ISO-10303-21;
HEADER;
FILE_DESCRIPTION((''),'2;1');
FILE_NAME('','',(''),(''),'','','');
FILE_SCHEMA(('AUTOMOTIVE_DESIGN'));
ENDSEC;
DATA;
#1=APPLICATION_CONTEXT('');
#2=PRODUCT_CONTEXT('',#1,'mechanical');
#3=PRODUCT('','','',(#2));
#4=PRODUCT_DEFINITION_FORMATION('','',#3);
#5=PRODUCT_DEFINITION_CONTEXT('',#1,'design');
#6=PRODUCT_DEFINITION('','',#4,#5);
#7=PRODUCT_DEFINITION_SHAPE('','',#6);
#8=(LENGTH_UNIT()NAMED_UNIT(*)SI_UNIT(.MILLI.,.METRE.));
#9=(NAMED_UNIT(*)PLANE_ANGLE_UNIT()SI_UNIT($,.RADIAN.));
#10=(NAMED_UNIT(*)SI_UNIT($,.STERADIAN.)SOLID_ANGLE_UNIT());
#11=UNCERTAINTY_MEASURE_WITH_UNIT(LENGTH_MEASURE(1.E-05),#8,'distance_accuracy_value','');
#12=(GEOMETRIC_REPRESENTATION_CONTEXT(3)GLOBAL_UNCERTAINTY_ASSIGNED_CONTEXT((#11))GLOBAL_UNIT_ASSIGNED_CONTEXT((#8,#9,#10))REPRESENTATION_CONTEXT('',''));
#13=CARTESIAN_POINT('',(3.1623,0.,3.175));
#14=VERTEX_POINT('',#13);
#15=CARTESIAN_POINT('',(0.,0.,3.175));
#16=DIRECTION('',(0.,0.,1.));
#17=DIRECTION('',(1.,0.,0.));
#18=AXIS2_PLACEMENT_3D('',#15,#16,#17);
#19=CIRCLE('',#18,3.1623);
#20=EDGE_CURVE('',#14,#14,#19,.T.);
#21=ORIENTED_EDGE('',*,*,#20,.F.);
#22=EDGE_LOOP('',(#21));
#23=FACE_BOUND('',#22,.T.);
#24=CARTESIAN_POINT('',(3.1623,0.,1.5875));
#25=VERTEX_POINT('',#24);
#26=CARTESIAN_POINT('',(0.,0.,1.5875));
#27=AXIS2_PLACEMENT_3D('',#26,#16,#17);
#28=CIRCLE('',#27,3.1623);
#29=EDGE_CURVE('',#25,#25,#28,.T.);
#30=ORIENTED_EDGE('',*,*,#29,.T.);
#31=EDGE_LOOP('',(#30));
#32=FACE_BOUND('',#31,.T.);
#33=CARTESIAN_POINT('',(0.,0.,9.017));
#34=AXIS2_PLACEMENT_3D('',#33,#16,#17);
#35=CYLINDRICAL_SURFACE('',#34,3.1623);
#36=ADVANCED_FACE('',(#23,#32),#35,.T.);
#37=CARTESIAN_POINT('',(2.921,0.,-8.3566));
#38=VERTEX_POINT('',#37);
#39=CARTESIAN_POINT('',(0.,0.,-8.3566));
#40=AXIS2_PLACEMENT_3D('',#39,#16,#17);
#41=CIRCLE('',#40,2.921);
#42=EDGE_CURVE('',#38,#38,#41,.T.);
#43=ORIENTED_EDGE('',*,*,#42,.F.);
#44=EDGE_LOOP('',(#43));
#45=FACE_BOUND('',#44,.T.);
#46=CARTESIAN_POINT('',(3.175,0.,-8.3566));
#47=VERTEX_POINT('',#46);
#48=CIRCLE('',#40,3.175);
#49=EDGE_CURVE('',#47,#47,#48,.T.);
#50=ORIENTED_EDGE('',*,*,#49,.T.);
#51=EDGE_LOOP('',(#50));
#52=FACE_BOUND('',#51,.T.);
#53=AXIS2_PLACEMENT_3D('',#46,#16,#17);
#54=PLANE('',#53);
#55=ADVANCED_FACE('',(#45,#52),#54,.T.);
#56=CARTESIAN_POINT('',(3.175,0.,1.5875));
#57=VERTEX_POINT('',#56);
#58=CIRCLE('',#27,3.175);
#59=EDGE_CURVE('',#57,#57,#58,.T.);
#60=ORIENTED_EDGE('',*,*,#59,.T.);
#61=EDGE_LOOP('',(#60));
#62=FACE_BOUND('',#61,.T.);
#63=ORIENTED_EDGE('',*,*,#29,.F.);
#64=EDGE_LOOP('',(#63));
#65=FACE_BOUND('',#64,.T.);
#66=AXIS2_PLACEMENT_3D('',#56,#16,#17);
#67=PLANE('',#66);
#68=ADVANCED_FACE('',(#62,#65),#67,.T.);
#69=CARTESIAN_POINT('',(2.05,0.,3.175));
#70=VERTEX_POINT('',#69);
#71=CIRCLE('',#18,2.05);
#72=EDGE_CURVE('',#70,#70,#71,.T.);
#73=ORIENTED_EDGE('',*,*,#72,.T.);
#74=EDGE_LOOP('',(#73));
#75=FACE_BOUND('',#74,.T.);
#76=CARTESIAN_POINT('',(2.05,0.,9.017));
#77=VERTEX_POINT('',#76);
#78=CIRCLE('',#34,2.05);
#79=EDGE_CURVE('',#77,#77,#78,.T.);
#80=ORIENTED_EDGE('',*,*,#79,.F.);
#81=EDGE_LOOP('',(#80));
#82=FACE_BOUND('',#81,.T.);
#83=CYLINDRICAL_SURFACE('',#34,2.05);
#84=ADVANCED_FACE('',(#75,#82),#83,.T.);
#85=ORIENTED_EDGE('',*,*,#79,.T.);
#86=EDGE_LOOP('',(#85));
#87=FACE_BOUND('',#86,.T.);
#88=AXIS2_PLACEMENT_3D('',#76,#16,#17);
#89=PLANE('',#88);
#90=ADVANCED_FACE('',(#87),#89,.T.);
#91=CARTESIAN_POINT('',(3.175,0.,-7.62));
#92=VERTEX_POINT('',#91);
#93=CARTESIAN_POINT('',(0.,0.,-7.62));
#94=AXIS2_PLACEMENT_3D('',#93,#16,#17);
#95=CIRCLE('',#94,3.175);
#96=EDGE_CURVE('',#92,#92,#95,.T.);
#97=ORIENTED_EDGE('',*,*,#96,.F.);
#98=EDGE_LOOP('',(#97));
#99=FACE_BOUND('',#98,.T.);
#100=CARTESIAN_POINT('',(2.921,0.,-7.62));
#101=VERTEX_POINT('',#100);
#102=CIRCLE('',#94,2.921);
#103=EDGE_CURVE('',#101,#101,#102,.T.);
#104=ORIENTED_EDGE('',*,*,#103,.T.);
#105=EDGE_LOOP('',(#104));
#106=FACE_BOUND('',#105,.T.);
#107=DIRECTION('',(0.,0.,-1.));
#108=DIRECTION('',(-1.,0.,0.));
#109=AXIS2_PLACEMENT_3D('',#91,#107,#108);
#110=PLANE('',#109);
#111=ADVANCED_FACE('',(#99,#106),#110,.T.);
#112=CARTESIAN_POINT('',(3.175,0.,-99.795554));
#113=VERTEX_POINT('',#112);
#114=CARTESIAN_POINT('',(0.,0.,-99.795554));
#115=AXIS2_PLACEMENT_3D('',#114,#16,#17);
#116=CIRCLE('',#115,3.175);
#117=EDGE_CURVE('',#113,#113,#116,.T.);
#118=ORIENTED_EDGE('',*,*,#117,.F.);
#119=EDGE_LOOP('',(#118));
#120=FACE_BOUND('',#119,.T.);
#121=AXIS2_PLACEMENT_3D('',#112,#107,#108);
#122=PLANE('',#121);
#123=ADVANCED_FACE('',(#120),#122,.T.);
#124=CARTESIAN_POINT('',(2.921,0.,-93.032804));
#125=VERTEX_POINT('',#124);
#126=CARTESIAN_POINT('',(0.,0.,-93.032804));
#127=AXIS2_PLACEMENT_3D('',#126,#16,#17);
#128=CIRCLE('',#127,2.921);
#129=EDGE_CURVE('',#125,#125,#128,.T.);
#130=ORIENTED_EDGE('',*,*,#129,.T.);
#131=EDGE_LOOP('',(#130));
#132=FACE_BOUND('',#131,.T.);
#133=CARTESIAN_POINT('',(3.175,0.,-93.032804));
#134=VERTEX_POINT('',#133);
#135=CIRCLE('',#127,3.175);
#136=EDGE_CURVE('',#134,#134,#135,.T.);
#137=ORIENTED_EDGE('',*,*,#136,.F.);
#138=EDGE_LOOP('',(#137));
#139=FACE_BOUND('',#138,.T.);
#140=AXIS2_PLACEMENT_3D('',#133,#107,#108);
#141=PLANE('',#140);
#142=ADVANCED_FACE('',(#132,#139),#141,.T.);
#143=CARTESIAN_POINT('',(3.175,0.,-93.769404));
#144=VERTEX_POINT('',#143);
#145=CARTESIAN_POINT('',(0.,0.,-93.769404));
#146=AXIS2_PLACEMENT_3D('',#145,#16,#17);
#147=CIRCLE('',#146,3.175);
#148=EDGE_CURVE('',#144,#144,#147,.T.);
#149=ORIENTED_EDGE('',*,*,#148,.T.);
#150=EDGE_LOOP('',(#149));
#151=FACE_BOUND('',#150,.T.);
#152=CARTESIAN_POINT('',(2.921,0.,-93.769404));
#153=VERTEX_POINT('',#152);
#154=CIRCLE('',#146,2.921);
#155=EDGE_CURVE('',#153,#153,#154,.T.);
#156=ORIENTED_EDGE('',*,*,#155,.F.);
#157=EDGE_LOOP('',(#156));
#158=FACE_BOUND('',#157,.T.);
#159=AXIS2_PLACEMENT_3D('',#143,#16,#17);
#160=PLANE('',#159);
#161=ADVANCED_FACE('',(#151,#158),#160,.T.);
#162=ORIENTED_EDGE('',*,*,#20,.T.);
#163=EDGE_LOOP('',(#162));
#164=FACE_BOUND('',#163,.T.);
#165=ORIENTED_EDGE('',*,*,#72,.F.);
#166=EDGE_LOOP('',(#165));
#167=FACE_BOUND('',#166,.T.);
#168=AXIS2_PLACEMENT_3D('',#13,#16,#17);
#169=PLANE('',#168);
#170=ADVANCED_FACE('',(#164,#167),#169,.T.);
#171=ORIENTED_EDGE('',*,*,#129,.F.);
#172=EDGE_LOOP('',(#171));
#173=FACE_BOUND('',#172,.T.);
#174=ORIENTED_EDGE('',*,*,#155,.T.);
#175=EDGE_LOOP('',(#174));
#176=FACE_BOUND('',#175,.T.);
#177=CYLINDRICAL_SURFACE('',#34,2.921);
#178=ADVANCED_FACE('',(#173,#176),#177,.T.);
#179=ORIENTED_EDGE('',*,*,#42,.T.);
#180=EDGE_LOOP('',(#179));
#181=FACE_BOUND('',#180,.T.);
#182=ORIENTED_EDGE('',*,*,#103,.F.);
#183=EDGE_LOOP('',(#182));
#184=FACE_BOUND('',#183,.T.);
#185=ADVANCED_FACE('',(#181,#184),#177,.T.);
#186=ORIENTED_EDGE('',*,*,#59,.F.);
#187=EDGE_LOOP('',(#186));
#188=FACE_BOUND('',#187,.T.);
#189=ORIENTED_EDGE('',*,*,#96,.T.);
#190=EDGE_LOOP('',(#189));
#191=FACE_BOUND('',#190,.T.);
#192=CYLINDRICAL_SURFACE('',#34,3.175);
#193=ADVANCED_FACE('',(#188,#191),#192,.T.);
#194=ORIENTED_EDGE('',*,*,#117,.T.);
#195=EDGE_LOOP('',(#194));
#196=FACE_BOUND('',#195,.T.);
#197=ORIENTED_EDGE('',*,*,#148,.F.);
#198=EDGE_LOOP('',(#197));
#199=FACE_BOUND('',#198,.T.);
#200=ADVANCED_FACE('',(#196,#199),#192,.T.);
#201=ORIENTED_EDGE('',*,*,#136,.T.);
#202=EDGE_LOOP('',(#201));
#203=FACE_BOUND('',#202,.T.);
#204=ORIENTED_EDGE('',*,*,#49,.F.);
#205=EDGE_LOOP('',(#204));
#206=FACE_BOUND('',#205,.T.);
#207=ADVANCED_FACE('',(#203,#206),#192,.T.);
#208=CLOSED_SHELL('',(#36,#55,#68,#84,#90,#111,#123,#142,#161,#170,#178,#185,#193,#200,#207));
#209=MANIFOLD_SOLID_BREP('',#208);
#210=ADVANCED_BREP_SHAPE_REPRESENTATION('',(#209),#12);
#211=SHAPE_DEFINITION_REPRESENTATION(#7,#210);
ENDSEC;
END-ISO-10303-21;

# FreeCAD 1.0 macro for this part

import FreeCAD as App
import Part
import Sketcher

V = App.Vector
Q = App.Units.Quantity


def add_polygon(sketch, points):
    """Adds a closed chain of lines whose ends are joined by coincident constraints."""
    first, n = sketch.GeometryCount, len(points)
    for a, b in zip(points, points[1:] + points[:1]):
        sketch.addGeometry(Part.LineSegment(App.Vector(*a, 0), App.Vector(*b, 0)), False)
    for i in range(n):
        sketch.addConstraint(Sketcher.Constraint("Coincident", first + i, 2, first + (i + 1) % n, 1))

doc = App.newDocument("Part")
body = doc.addObject("PartDesign::Body", "Body")

sketch1 = doc.addObject("Sketcher::SketchObject", "Sketch")
body.addObject(sketch1)
sketch1.AttachmentSupport = (doc.XZ_Plane, [""])
sketch1.MapMode = "FlatFace"
add_polygon(sketch1, [(3.175, -99.795554), (0, -99.795554), (0, 9.017), (2.05, 9.017), (2.05, 3.175), (3.1623, 3.175), (3.1623, 1.5875), (3.175, 1.5875), (3.175, -7.62), (2.921, -7.62), (2.921, -8.3566), (3.175, -8.3566), (3.175, -93.032804), (2.921, -93.032804), (2.921, -93.769404), (3.175, -93.769404)])
sketch1.addConstraint([
    Sketcher.Constraint("Horizontal", 0),
    Sketcher.Constraint("Vertical", 1),
    Sketcher.Constraint("Horizontal", 2),
    Sketcher.Constraint("Vertical", 3),
    Sketcher.Constraint("Horizontal", 4),
    Sketcher.Constraint("Vertical", 5),
    Sketcher.Constraint("Horizontal", 6),
    Sketcher.Constraint("Vertical", 7),
    Sketcher.Constraint("Horizontal", 8),
    Sketcher.Constraint("Vertical", 9),
    Sketcher.Constraint("Horizontal", 10),
    Sketcher.Constraint("Vertical", 11),
    Sketcher.Constraint("Horizontal", 12),
    Sketcher.Constraint("Vertical", 13),
    Sketcher.Constraint("Horizontal", 14),
    Sketcher.Constraint("Vertical", 15),
    Sketcher.Constraint("PointOnObject", 0, 2, -2),
    Sketcher.Constraint("Vertical", 7, 2, 10, 2),
    Sketcher.Constraint("Vertical", 9, 2, 12, 2),
    Sketcher.Constraint("Vertical", 11, 2, 14, 2),
    Sketcher.Constraint("Equal", 9, 13),
    Sketcher.Constraint("DistanceX", 8, 2, 8, 1, Q("0.01 in")),
    Sketcher.Constraint("DistanceY", 3, 2, 3, 1, Q("0.23 in")),
    Sketcher.Constraint("DistanceY", 7, 2, -1, 1, Q("0.3 in")),
    Sketcher.Constraint("DistanceX", 0, 2, 0, 1, Q("0.125 in")),
    Sketcher.Constraint("DistanceY", 5, 2, 5, 1, Q("0.0625 in")),
    Sketcher.Constraint("DistanceY", 9, 2, 9, 1, Q("0.029 in")),
    Sketcher.Constraint("DistanceX", 6, 1, 6, 2, Q("0.0005 in")),
    Sketcher.Constraint("DistanceY", 7, 2, 7, 1, Q("0.3625 in")),
    Sketcher.Constraint("DistanceX", 2, 1, 2, 2, Q("2.05 mm")),
    Sketcher.Constraint("DistanceY", 15, 2, 15, 1, Q("6.02615 mm")),
    Sketcher.Constraint("DistanceY", 1, 1, 1, 2, Q("108.812554 mm")),
])
revolution = doc.addObject("PartDesign::Revolution", "Revolution")
body.addObject(revolution)
revolution.Profile = sketch1
revolution.ReferenceAxis = (sketch1, ["V_Axis"])
revolution.Angle = 360

doc.recompute()
